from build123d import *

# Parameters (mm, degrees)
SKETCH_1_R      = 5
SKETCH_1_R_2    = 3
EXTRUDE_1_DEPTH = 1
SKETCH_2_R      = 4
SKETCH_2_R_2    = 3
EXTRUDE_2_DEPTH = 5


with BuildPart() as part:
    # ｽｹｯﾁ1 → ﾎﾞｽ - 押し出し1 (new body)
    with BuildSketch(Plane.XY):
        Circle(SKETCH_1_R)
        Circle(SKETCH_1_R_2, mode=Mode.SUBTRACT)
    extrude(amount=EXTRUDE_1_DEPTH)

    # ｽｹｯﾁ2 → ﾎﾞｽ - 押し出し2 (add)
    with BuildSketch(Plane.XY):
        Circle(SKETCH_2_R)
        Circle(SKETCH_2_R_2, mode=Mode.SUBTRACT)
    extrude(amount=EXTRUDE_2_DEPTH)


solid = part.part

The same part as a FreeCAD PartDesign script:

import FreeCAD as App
import Part
import Sketcher

V = App.Vector
Q = App.Units.Quantity

doc = App.newDocument("Part")
body = doc.addObject("PartDesign::Body", "Body")

# Sketch on XY plane
sketch1 = doc.addObject("Sketcher::SketchObject", "Sketch")
body.addObject(sketch1)
sketch1.AttachmentSupport = (doc.XY_Plane, [""])
sketch1.MapMode = "FlatFace"
sketch1.addGeometry(Part.Circle(V(0, 0, 0), V(0, 0, 1), 5), False)
sketch1.addGeometry(Part.Circle(V(0, 0, 0), V(0, 0, 1), 3), False)
sketch1.addConstraint(Sketcher.Constraint("Coincident", 0, 3, -1, 1))
sketch1.addConstraint(Sketcher.Constraint("Coincident", 1, 3, -1, 1))
sketch1.addConstraint(Sketcher.Constraint("Diameter", 0, Q("10 mm")))
sketch1.addConstraint(Sketcher.Constraint("Diameter", 1, Q("6 mm")))
pad1 = doc.addObject("PartDesign::Pad", "Pad")
body.addObject(pad1)
pad1.Profile = sketch1
pad1.Length = 1

# Sketch on XY plane
sketch2 = doc.addObject("Sketcher::SketchObject", "Sketch001")
body.addObject(sketch2)
sketch2.AttachmentSupport = (doc.XY_Plane, [""])
sketch2.MapMode = "FlatFace"
sketch2.addGeometry(Part.Circle(V(0, 0, 0), V(0, 0, 1), 4), False)
sketch2.addGeometry(Part.Circle(V(0, 0, 0), V(0, 0, 1), 3), False)
sketch2.addConstraint(Sketcher.Constraint("Coincident", 0, 3, -1, 1))
sketch2.addConstraint(Sketcher.Constraint("Coincident", 1, 3, -1, 1))
sketch2.addConstraint(Sketcher.Constraint("Diameter", 0, Q("8 mm")))
sketch2.addConstraint(Sketcher.Constraint("Diameter", 1, Q("6 mm")))
pad2 = doc.addObject("PartDesign::Pad", "Pad001")
body.addObject(pad2)
pad2.Profile = sketch2
pad2.Length = 5

doc.recompute()
